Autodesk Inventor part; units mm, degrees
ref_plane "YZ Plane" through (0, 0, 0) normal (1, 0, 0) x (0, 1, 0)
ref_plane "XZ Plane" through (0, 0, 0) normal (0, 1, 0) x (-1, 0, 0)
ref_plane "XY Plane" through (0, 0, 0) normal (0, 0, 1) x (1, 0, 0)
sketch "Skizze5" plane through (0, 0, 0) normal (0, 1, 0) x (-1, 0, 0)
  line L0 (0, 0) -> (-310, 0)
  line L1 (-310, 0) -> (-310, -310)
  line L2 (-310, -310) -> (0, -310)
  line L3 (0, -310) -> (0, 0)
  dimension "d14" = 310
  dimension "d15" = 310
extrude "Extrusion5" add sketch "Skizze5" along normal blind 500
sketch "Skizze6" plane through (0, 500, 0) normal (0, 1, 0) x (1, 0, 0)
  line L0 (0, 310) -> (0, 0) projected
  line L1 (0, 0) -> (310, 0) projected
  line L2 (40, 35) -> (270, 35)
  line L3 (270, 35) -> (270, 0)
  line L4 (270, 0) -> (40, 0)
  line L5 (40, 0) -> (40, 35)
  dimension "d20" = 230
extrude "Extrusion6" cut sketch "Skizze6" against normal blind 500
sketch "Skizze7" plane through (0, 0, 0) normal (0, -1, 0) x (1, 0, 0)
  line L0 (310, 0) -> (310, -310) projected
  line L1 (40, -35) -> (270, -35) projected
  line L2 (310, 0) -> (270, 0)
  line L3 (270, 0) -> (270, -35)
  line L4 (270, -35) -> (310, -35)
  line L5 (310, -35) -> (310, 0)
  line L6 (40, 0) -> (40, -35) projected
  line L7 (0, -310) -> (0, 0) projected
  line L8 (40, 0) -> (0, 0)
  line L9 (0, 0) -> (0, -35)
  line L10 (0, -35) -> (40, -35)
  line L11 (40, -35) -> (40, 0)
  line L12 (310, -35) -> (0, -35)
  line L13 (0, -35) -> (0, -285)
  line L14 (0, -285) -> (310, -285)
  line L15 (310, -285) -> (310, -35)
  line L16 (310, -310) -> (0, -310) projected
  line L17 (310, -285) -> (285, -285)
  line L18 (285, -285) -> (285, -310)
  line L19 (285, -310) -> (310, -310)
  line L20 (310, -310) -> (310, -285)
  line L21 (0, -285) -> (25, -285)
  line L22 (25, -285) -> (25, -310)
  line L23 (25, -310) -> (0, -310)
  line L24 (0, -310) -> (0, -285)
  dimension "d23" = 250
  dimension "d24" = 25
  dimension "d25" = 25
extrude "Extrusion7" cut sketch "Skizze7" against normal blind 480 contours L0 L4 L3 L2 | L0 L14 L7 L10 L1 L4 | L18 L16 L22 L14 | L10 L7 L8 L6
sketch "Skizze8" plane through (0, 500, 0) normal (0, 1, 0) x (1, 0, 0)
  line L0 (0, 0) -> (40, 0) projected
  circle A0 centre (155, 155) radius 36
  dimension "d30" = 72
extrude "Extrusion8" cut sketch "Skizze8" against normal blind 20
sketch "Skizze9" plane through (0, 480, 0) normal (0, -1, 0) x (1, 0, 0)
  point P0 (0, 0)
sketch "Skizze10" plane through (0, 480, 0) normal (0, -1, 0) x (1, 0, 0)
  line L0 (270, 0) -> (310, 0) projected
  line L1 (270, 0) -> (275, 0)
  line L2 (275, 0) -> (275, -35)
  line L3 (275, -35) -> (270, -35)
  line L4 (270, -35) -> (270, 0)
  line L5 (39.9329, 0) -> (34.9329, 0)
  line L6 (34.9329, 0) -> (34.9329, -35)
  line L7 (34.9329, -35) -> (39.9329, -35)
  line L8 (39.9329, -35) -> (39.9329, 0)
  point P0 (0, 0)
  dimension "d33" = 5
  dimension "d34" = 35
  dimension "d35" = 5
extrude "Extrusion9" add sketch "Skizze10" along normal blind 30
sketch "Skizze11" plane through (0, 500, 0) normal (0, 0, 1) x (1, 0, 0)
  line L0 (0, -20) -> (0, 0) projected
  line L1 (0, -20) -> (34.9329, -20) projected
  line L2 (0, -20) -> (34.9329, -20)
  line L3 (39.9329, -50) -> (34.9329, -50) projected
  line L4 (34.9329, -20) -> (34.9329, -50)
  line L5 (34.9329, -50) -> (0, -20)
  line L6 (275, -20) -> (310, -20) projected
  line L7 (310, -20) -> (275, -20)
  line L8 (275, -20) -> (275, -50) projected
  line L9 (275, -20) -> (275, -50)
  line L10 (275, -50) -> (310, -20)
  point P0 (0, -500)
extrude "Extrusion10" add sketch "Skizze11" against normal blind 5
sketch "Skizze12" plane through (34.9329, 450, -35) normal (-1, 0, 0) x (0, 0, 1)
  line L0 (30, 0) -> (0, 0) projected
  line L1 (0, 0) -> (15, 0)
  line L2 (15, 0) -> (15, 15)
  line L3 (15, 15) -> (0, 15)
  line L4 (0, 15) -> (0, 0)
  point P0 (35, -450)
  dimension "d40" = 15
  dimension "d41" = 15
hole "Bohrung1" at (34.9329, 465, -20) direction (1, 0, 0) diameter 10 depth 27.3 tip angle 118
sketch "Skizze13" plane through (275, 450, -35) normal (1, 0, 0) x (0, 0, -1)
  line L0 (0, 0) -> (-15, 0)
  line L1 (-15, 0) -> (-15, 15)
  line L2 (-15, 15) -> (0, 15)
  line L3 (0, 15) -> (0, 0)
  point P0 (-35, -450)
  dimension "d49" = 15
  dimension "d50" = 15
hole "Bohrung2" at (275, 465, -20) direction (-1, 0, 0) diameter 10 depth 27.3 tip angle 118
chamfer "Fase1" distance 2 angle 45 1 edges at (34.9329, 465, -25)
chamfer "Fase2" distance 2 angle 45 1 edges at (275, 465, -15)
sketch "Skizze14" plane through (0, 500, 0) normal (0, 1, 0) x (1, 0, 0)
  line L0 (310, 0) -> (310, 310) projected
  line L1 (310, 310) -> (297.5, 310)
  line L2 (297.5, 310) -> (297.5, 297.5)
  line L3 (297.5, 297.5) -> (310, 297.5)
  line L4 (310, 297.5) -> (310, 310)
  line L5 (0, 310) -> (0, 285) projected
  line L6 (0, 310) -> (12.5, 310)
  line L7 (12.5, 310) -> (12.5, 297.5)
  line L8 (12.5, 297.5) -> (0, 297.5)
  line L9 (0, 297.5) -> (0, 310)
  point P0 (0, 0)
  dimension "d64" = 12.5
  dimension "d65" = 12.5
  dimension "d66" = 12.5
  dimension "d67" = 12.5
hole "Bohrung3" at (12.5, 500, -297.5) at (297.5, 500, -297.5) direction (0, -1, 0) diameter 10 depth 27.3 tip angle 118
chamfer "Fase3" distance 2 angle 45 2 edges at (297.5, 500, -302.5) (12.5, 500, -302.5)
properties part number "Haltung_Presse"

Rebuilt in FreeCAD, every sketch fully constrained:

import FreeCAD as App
import Part
import Sketcher
Q = App.Units.Quantity


def edges_at(feature, points):
    """Names of the edges that pass closest to the given points."""
    edges = feature.Shape.Edges
    near = lambda p: min(range(len(edges)), key=lambda i: edges[i].distToShape(Part.Vertex(*p))[0])
    return sorted({f"Edge{near(p) + 1}" for p in points})


def add_polygon(sketch, points):
    """Adds a closed chain of lines whose ends are joined by coincident constraints."""
    first, n = sketch.GeometryCount, len(points)
    for a, b in zip(points, points[1:] + points[:1]):
        sketch.addGeometry(Part.LineSegment(App.Vector(*a, 0), App.Vector(*b, 0)), False)
    for i in range(n):
        sketch.addConstraint(Sketcher.Constraint("Coincident", first + i, 2, first + (i + 1) % n, 1))

doc = App.newDocument("Part")
body = doc.addObject("PartDesign::Body", "Body")

# Sketch on XZ plane
sketch1 = body.newObject("Sketcher::SketchObject", "Sketch")
sketch1.AttachmentSupport = (doc.getObject("XZ_Plane"), [""])
sketch1.MapMode = "FlatFace"
add_polygon(sketch1, [(0, -310), (0, 0), (310, 0), (310, -310)])  # lines 0-3
sketch1.addConstraint([
    Sketcher.Constraint("Vertical", 0),
    Sketcher.Constraint("Horizontal", 1),
    Sketcher.Constraint("Vertical", 2),
    Sketcher.Constraint("Horizontal", 3),
    Sketcher.Constraint("Coincident", 0, 2, -1, 1),
    Sketcher.Constraint("Equal", 3, 0),
    Sketcher.Constraint("DistanceX", 1, 1, 1, 2, Q("310 mm")),
])
pad1 = body.newObject("PartDesign::Pad", "Pad")
pad1.Profile = sketch1
pad1.Length = 500
pad1.Reversed = True

# Sketch on XZ plane
sketch2 = body.newObject("Sketcher::SketchObject", "Sketch001")
sketch2.AttachmentSupport = (doc.getObject("XZ_Plane"), [""])
sketch2.MapMode = "FlatFace"
sketch2.AttachmentOffset = App.Placement(App.Vector(0, 0, -500), App.Rotation())
add_polygon(sketch2, [(40, -35), (40, 0), (270, 0), (270, -35)])  # lines 0-3
sketch2.addConstraint([
    Sketcher.Constraint("Vertical", 0),
    Sketcher.Constraint("Horizontal", 1),
    Sketcher.Constraint("Vertical", 2),
    Sketcher.Constraint("Horizontal", 3),
    Sketcher.Constraint("PointOnObject", 0, 2, -1),
    Sketcher.Constraint("DistanceX", 1, 1, 1, 2, Q("230 mm")),
    Sketcher.Constraint("DistanceY", 0, 1, 0, 2, Q("35 mm")),
    Sketcher.Constraint("DistanceX", -1, 1, 0, 2, Q("40 mm")),
])
pocket1 = body.newObject("PartDesign::Pocket", "Pocket")
pocket1.Profile = sketch2
pocket1.Length = 500
pocket1.Reversed = True

# Sketch on XZ plane
sketch3 = body.newObject("Sketcher::SketchObject", "Sketch002")
sketch3.AttachmentSupport = (doc.getObject("XZ_Plane"), [""])
sketch3.MapMode = "FlatFace"
add_polygon(sketch3, [(310, 0), (270, 0), (270, -35), (40, -35), (40, 0), (0, 0), (0, -285), (25, -285), (25, -310), (285, -310), (285, -285), (310, -285)])  # lines 0-11
sketch3.addConstraint([
    Sketcher.Constraint("Horizontal", 0),
    Sketcher.Constraint("Vertical", 1),
    Sketcher.Constraint("Horizontal", 2),
    Sketcher.Constraint("Vertical", 3),
    Sketcher.Constraint("Horizontal", 4),
    Sketcher.Constraint("Vertical", 5),
    Sketcher.Constraint("Horizontal", 6),
    Sketcher.Constraint("Vertical", 7),
    Sketcher.Constraint("Horizontal", 8),
    Sketcher.Constraint("Vertical", 9),
    Sketcher.Constraint("Horizontal", 10),
    Sketcher.Constraint("Vertical", 11),
    Sketcher.Constraint("Coincident", 4, 2, -1, 1),
    Sketcher.Constraint("PointOnObject", 0, 2, -1),
    Sketcher.Constraint("Horizontal", 6, 2, 9, 2),
    Sketcher.Constraint("Equal", 0, 4),
    Sketcher.Constraint("Equal", 6, 10),
    Sketcher.Constraint("Equal", 10, 7),
    Sketcher.Constraint("DistanceX", 6, 1, 6, 2, Q("25 mm")),
    Sketcher.Constraint("DistanceY", 5, 2, 2, 2, Q("250 mm")),
    Sketcher.Constraint("DistanceX", 0, 2, 0, 1, Q("40 mm")),
    Sketcher.Constraint("DistanceX", 2, 2, 2, 1, Q("230 mm")),
    Sketcher.Constraint("DistanceY", 1, 2, 1, 1, Q("35 mm")),
])
pocket2 = body.newObject("PartDesign::Pocket", "Pocket001")
pocket2.Profile = sketch3
pocket2.Length = 480

# Sketch on XZ plane
sketch4 = body.newObject("Sketcher::SketchObject", "Sketch003")
sketch4.AttachmentSupport = (doc.getObject("XZ_Plane"), [""])
sketch4.MapMode = "FlatFace"
sketch4.AttachmentOffset = App.Placement(App.Vector(0, 0, -500), App.Rotation())
sketch4.addGeometry(Part.Circle(App.Vector(155, -155, 0), App.Vector(0, 0, 1), 36), False)
sketch4.addConstraint([
    Sketcher.Constraint("Diameter", 0, Q("72 mm")),
    Sketcher.Constraint("DistanceX", -1, 1, 0, 3, Q("155 mm")),
    Sketcher.Constraint("DistanceY", 0, 3, -1, 1, Q("155 mm")),
])
pocket3 = body.newObject("PartDesign::Pocket", "Pocket002")
pocket3.Profile = sketch4
pocket3.Length = 20
pocket3.Reversed = True

# Sketch on XZ plane
sketch5 = body.newObject("Sketcher::SketchObject", "Sketch004")
sketch5.AttachmentSupport = (doc.getObject("XZ_Plane"), [""])
sketch5.MapMode = "FlatFace"
sketch5.AttachmentOffset = App.Placement(App.Vector(0, 0, -480), App.Rotation())
add_polygon(sketch5, [(275, 0), (270, 0), (270, -35), (275, -35)])  # lines 0-3
add_polygon(sketch5, [(40, -35), (40, 0), (35, 0), (35, -35)])  # lines 4-7
sketch5.addConstraint([
    Sketcher.Constraint("Horizontal", 0),
    Sketcher.Constraint("Vertical", 1),
    Sketcher.Constraint("Horizontal", 2),
    Sketcher.Constraint("Vertical", 3),
    Sketcher.Constraint("Vertical", 4),
    Sketcher.Constraint("Horizontal", 5),
    Sketcher.Constraint("Vertical", 6),
    Sketcher.Constraint("Horizontal", 7),
    Sketcher.Constraint("PointOnObject", 0, 2, -1),
    Sketcher.Constraint("PointOnObject", 4, 2, -1),
    Sketcher.Constraint("Horizontal", 2, 2, 6, 2),
    Sketcher.Constraint("Equal", 2, 5),
    Sketcher.Constraint("DistanceX", 0, 2, 0, 1, Q("5 mm")),
    Sketcher.Constraint("DistanceY", 1, 2, 1, 1, Q("35 mm")),
    Sketcher.Constraint("DistanceX", -1, 1, 0, 2, Q("270 mm")),
    Sketcher.Constraint("DistanceX", -1, 1, 4, 2, Q("39.933 mm")),
])
pad2 = body.newObject("PartDesign::Pad", "Pad001")
pad2.Profile = sketch5
pad2.Length = 30

# Sketch on XY plane
sketch6 = body.newObject("Sketcher::SketchObject", "Sketch005")
sketch6.AttachmentSupport = (doc.getObject("XY_Plane"), [""])
sketch6.MapMode = "FlatFace"
add_polygon(sketch6, [(35, 480), (0, 480), (35, 450)])  # lines 0-2
add_polygon(sketch6, [(310, 480), (275, 480), (275, 450)])  # lines 3-5
sketch6.addConstraint([
    Sketcher.Constraint("Horizontal", 0),
    Sketcher.Constraint("Vertical", 2),
    Sketcher.Constraint("Horizontal", 3),
    Sketcher.Constraint("Vertical", 4),
    Sketcher.Constraint("PointOnObject", 0, 2, -2),
    Sketcher.Constraint("Horizontal", 2, 2, 3, 2),
    Sketcher.Constraint("Horizontal", 1, 2, 4, 2),
    Sketcher.Constraint("DistanceX", 3, 2, 3, 1, Q("35 mm")),
    Sketcher.Constraint("DistanceY", 2, 1, 2, 2, Q("30 mm")),
    Sketcher.Constraint("DistanceY", -1, 1, 0, 2, Q("480 mm")),
    Sketcher.Constraint("DistanceX", -1, 1, 3, 2, Q("275 mm")),
    Sketcher.Constraint("DistanceX", 0, 2, 0, 1, Q("34.933 mm")),
])
pad3 = body.newObject("PartDesign::Pad", "Pad002")
pad3.Profile = sketch6
pad3.Length = 5
pad3.Reversed = True

# Sketch on YZ plane
sketch7 = body.newObject("Sketcher::SketchObject", "Sketch006")
sketch7.AttachmentSupport = (doc.getObject("YZ_Plane"), [""])
sketch7.MapMode = "FlatFace"
sketch7.AttachmentOffset = App.Placement(App.Vector(0, 0, 34.9329), App.Rotation())
sketch7.addGeometry(Part.Circle(App.Vector(465, -20, 0), App.Vector(0, 0, 1), 5), False)
sketch7.addConstraint([
    Sketcher.Constraint("Diameter", 0, Q("10 mm")),
    Sketcher.Constraint("DistanceX", -1, 1, 0, 3, Q("465 mm")),
    Sketcher.Constraint("DistanceY", 0, 3, -1, 1, Q("20 mm")),
])
doc.recompute()
hole = body.newObject("PartDesign::Hole", "Hole")
hole.Profile = sketch7
hole.ThreadType = "None"
hole.Diameter = 10
hole.DepthType = "Dimension"
hole.Depth = 27.3
hole.DrillPoint = "Angled"
hole.DrillPointAngle = 118
hole.Reversed = True

# Sketch on YZ plane
sketch8 = body.newObject("Sketcher::SketchObject", "Sketch007")
sketch8.AttachmentSupport = (doc.getObject("YZ_Plane"), [""])
sketch8.MapMode = "FlatFace"
sketch8.AttachmentOffset = App.Placement(App.Vector(0, 0, 275), App.Rotation())
sketch8.addGeometry(Part.Circle(App.Vector(465, -20, 0), App.Vector(0, 0, 1), 5), False)
sketch8.addConstraint([
    Sketcher.Constraint("Diameter", 0, Q("10 mm")),
    Sketcher.Constraint("DistanceX", -1, 1, 0, 3, Q("465 mm")),
    Sketcher.Constraint("DistanceY", 0, 3, -1, 1, Q("20 mm")),
])
doc.recompute()
hole2 = body.newObject("PartDesign::Hole", "Hole001")
hole2.Profile = sketch8
hole2.ThreadType = "None"
hole2.Diameter = 10
hole2.DepthType = "Dimension"
hole2.Depth = 27.3
hole2.DrillPoint = "Angled"
hole2.DrillPointAngle = 118
doc.recompute()

chamfer = body.newObject("PartDesign::Chamfer", "Chamfer")
chamfer.Base = (hole2, edges_at(hole2, [(34.933, 465, -25)]))
chamfer.Size = 2
doc.recompute()

chamfer2 = body.newObject("PartDesign::Chamfer", "Chamfer001")
chamfer2.Base = (chamfer, edges_at(chamfer, [(275, 465, -15)]))
chamfer2.Size = 2

# Sketch on XZ plane
sketch9 = body.newObject("Sketcher::SketchObject", "Sketch008")
sketch9.AttachmentSupport = (doc.getObject("XZ_Plane"), [""])
sketch9.MapMode = "FlatFace"
sketch9.AttachmentOffset = App.Placement(App.Vector(0, 0, -500), App.Rotation())
sketch9.addGeometry([
    Part.Circle(App.Vector(12, -298, 0), App.Vector(0, 0, 1), 5),
    Part.Circle(App.Vector(298, -298, 0), App.Vector(0, 0, 1), 5),
], False)
sketch9.addConstraint([
    Sketcher.Constraint("Equal", 0, 1),
    Sketcher.Constraint("Horizontal", 0, 3, 1, 3),
    Sketcher.Constraint("Diameter", 0, Q("10 mm")),
    Sketcher.Constraint("DistanceX", 0, 3, 1, 3, Q("285 mm")),
    Sketcher.Constraint("DistanceX", -1, 1, 0, 3, Q("12.5 mm")),
    Sketcher.Constraint("DistanceY", 0, 3, -1, 1, Q("297.5 mm")),
])
doc.recompute()
hole3 = body.newObject("PartDesign::Hole", "Hole002")
hole3.Profile = sketch9
hole3.ThreadType = "None"
hole3.Diameter = 10
hole3.DepthType = "Dimension"
hole3.Depth = 27.3
hole3.DrillPoint = "Angled"
hole3.DrillPointAngle = 118
hole3.Reversed = True
doc.recompute()

chamfer3 = body.newObject("PartDesign::Chamfer", "Chamfer002")
chamfer3.Base = (hole3, edges_at(hole3, [(297.5, 500, -302.5), (12.5, 500, -302.5)]))
chamfer3.Size = 2

doc.recompute()
